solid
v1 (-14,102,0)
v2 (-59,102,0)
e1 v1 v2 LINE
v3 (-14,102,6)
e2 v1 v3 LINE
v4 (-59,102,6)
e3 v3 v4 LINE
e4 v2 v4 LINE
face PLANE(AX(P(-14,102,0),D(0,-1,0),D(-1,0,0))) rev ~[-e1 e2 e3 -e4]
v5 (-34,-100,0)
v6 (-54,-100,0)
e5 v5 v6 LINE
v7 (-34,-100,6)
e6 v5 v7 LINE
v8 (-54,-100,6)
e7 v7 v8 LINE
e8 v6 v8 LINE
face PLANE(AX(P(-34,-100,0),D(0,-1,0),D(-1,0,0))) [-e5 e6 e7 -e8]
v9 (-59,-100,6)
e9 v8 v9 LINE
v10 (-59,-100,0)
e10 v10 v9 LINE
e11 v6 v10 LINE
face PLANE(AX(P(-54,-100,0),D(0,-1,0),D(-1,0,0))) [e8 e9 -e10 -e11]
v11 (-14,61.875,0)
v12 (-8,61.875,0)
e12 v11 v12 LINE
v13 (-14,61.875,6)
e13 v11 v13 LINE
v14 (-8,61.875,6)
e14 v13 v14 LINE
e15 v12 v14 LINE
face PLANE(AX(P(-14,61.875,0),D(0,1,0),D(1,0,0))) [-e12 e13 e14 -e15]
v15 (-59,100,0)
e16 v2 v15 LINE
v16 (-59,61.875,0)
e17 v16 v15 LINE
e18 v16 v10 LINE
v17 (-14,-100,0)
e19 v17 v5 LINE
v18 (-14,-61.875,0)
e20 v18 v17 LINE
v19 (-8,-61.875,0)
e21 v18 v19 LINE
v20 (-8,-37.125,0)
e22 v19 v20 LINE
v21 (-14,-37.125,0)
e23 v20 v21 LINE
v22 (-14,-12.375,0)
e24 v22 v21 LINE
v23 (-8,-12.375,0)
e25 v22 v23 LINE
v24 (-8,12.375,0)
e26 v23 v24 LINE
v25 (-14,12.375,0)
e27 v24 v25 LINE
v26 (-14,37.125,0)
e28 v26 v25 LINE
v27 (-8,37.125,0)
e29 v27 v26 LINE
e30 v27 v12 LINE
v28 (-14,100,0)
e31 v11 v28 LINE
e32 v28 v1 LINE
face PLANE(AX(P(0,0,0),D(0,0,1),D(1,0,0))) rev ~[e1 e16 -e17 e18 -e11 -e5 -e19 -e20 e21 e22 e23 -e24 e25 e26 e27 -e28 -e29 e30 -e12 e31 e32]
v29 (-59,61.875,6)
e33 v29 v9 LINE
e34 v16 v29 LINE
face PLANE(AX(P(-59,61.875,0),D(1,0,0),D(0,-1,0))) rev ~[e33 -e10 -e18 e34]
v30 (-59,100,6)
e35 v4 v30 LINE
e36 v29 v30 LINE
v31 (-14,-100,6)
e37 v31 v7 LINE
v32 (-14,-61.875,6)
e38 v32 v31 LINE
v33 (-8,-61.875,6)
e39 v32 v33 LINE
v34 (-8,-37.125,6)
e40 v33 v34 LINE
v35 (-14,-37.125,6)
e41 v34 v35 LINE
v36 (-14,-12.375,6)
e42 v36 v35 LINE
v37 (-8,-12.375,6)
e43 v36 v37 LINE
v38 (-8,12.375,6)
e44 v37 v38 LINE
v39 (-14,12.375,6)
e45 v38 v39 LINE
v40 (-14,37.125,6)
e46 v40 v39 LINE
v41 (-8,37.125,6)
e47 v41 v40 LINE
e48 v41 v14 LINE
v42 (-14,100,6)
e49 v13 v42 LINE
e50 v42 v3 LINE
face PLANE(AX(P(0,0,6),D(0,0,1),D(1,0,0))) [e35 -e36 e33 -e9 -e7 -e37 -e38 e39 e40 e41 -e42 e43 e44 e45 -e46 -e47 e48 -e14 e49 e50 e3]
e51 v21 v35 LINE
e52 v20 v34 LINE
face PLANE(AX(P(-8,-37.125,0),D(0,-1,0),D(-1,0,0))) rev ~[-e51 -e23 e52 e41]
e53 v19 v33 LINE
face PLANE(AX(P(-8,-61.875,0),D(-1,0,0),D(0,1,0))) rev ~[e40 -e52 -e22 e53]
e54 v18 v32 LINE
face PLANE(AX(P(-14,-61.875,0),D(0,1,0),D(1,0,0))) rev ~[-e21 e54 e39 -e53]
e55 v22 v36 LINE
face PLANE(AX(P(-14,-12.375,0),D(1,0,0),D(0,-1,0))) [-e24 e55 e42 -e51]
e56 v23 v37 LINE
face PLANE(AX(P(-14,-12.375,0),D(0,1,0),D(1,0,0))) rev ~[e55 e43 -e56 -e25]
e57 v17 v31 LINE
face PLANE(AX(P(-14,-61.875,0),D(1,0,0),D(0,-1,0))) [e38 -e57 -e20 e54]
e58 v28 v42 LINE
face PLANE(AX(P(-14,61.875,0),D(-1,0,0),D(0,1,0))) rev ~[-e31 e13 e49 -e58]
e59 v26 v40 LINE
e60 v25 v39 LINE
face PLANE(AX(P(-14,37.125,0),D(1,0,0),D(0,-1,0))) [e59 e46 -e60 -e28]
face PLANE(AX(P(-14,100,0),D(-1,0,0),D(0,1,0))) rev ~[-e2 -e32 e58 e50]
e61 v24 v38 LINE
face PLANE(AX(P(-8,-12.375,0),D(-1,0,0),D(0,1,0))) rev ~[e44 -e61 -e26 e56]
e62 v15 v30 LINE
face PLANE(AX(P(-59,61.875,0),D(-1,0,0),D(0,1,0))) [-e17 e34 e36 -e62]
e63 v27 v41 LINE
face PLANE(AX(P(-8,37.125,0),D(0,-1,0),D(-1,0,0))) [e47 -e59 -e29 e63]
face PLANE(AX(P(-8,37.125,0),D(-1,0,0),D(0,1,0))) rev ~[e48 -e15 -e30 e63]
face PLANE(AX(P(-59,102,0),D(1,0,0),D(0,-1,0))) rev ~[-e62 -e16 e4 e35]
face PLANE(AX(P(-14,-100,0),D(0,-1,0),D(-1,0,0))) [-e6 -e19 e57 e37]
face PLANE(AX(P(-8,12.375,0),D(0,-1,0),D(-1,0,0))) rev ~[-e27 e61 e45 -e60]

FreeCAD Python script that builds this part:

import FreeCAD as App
import Part
import Sketcher

V = App.Vector


def add_polygon(sketch, points):
    """Adds a closed chain of lines whose ends are joined by coincident constraints."""
    first, n = sketch.GeometryCount, len(points)
    for a, b in zip(points, points[1:] + points[:1]):
        sketch.addGeometry(Part.LineSegment(App.Vector(*a, 0), App.Vector(*b, 0)), False)
    for i in range(n):
        sketch.addConstraint(Sketcher.Constraint("Coincident", first + i, 2, first + (i + 1) % n, 1))

doc = App.newDocument("Part")
body = doc.addObject("PartDesign::Body", "Body")

sketch1 = body.newObject("Sketcher::SketchObject", "Sketch")
sketch1.AttachmentSupport = (doc.getObject("XY_Plane"), [""])
sketch1.MapMode = "FlatFace"
add_polygon(sketch1, [(-59, 102), (-59, -100), (-14, -100), (-14, -62), (-8, -62), (-8, -37), (-14, -37), (-14, -12), (-8, -12), (-8, 12), (-14, 12), (-14, 37), (-8, 37), (-8, 62), (-14, 62), (-14, 102)])
sketch1.addConstraint(Sketcher.Constraint("Vertical", 0))
sketch1.addConstraint(Sketcher.Constraint("Horizontal", 1))
sketch1.addConstraint(Sketcher.Constraint("Vertical", 2))
sketch1.addConstraint(Sketcher.Constraint("Horizontal", 3))
sketch1.addConstraint(Sketcher.Constraint("Vertical", 4))
sketch1.addConstraint(Sketcher.Constraint("Horizontal", 5))
sketch1.addConstraint(Sketcher.Constraint("Vertical", 6))
sketch1.addConstraint(Sketcher.Constraint("Horizontal", 7))
sketch1.addConstraint(Sketcher.Constraint("Vertical", 8))
sketch1.addConstraint(Sketcher.Constraint("Horizontal", 9))
sketch1.addConstraint(Sketcher.Constraint("Vertical", 10))
sketch1.addConstraint(Sketcher.Constraint("Horizontal", 11))
sketch1.addConstraint(Sketcher.Constraint("Vertical", 12))
sketch1.addConstraint(Sketcher.Constraint("Horizontal", 13))
sketch1.addConstraint(Sketcher.Constraint("Vertical", 14))
sketch1.addConstraint(Sketcher.Constraint("Horizontal", 15))
sketch1.addConstraint(Sketcher.Constraint("Symmetric", 6, 2, 9, 2, -1))
sketch1.addConstraint(Sketcher.Constraint("Symmetric", 4, 2, 11, 2, -1))
sketch1.addConstraint(Sketcher.Constraint("Symmetric", 2, 2, 13, 2, -1))
sketch1.addConstraint(Sketcher.Constraint("Vertical", 2, 2, 5, 2))
sketch1.addConstraint(Sketcher.Constraint("Vertical", 4, 2, 7, 2))
sketch1.addConstraint(Sketcher.Constraint("Equal", 4, 6))
sketch1.addConstraint(Sketcher.Constraint("Equal", 6, 8))
sketch1.addConstraint(Sketcher.Constraint("DistanceX", 1, 1, 1, 2, 45.0))
sketch1.addConstraint(Sketcher.Constraint("DistanceX", 3, 1, 3, 2, 6.0))
sketch1.addConstraint(Sketcher.Constraint("DistanceY", 0, 2, 0, 1, 202.0))
sketch1.addConstraint(Sketcher.Constraint("DistanceX", 0, 2, -1, 1, 59.0))
sketch1.addConstraint(Sketcher.Constraint("DistanceY", 0, 2, -1, 1, 100.0))
sketch1.addConstraint(Sketcher.Constraint("DistanceY", 4, 1, 4, 2, 24.75))
pad1 = body.newObject("PartDesign::Pad", "Pad")
pad1.Profile = sketch1
pad1.Length = 6

doc.recompute()
